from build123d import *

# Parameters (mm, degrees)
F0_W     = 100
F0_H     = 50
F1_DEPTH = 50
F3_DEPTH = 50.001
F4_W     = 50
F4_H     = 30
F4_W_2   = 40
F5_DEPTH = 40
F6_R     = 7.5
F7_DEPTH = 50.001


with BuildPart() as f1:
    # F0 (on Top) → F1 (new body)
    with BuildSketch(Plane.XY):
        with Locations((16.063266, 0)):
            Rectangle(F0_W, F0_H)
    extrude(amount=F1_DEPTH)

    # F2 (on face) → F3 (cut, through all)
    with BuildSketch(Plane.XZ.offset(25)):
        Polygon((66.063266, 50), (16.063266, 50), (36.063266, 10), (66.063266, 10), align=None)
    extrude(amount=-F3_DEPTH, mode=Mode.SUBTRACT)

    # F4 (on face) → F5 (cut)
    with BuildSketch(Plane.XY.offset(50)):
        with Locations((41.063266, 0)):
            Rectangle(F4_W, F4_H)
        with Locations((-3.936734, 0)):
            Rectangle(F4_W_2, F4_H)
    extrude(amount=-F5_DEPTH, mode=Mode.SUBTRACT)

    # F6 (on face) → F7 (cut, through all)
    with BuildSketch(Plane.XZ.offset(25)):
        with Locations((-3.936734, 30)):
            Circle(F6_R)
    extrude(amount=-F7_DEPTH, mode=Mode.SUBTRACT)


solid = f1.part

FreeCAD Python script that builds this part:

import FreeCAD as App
import Part
import Sketcher

V = App.Vector
Q = App.Units.Quantity

doc = App.newDocument("Part")
params = doc.addObject("Spreadsheet::Sheet", "Params")
for row, (alias, value) in enumerate([
    ("sketch1_width", "100 mm"),
    ("sketch1_height", "50 mm"),
    ("pad1_length", "50 mm"),
    ("sketch2_width", "50 mm"),
    ("sketch2_width2", "30 mm"),
    ("sketch2_height", "40 mm"),
    ("sketch3_width", "90 mm"),
    ("sketch3_height", "30 mm"),
    ("pocket2_length", "40 mm"),
    ("sketch4_diameter", "15 mm"),
], start=1):
    params.set(f"A{row}", alias)
    params.set(f"B{row}", "=" + value)
    params.setAlias(f"B{row}", alias)

body = doc.addObject("PartDesign::Body", "Body")

# Sketch on XY plane
sketch1 = body.newObject("Sketcher::SketchObject", "Sketch")
sketch1.AttachmentSupport = (doc.getObject("XY_Plane"), [""])
sketch1.MapMode = "FlatFace"
sketch1.addGeometry(Part.LineSegment(V(-33.936734, 25, 0), V(-33.936734, -25, 0)), False)
sketch1.addGeometry(Part.LineSegment(V(-33.936734, -25, 0), V(66.063266, -25, 0)), False)
sketch1.addGeometry(Part.LineSegment(V(66.063266, -25, 0), V(66.063266, 25, 0)), False)
sketch1.addGeometry(Part.LineSegment(V(66.063266, 25, 0), V(-33.936734, 25, 0)), False)
sketch1.addConstraint(Sketcher.Constraint("Coincident", 0, 2, 1, 1))
sketch1.addConstraint(Sketcher.Constraint("Coincident", 1, 2, 2, 1))
sketch1.addConstraint(Sketcher.Constraint("Coincident", 2, 2, 3, 1))
sketch1.addConstraint(Sketcher.Constraint("Coincident", 3, 2, 0, 1))
sketch1.addConstraint(Sketcher.Constraint("Vertical", 0))
sketch1.addConstraint(Sketcher.Constraint("Horizontal", 1))
sketch1.addConstraint(Sketcher.Constraint("Vertical", 2))
sketch1.addConstraint(Sketcher.Constraint("Horizontal", 3))
sketch1.addConstraint(Sketcher.Constraint("DistanceX", 1, 1, 1, 2, Q("100 mm")))
sketch1.addConstraint(Sketcher.Constraint("DistanceY", 0, 2, 0, 1, Q("50 mm")))
sketch1.addConstraint(Sketcher.Constraint("DistanceY", 0, 2, -1, 1, Q("25 mm")))
sketch1.addConstraint(Sketcher.Constraint("DistanceX", 0, 2, -1, 1, Q("33.936734 mm")))
sketch1.setExpression("Constraints[8]", "Params.sketch1_width")
sketch1.setExpression("Constraints[9]", "Params.sketch1_height")
pad1 = body.newObject("PartDesign::Pad", "Pad")
pad1.Profile = sketch1
pad1.setExpression("Length", "Params.pad1_length")

# Sketch on XZ plane
sketch2 = body.newObject("Sketcher::SketchObject", "Sketch001")
sketch2.AttachmentSupport = (doc.getObject("XZ_Plane"), [""])
sketch2.MapMode = "FlatFace"
sketch2.AttachmentOffset = App.Placement(V(0, 0, 25), App.Rotation())
sketch2.addGeometry(Part.LineSegment(V(66.063266, 50, 0), V(16.063266, 50, 0)), False)
sketch2.addGeometry(Part.LineSegment(V(16.063266, 50, 0), V(36.063266, 10, 0)), False)
sketch2.addGeometry(Part.LineSegment(V(36.063266, 10, 0), V(66.063266, 10, 0)), False)
sketch2.addGeometry(Part.LineSegment(V(66.063266, 10, 0), V(66.063266, 50, 0)), False)
sketch2.addConstraint(Sketcher.Constraint("Coincident", 0, 2, 1, 1))
sketch2.addConstraint(Sketcher.Constraint("Coincident", 1, 2, 2, 1))
sketch2.addConstraint(Sketcher.Constraint("Coincident", 2, 2, 3, 1))
sketch2.addConstraint(Sketcher.Constraint("Coincident", 3, 2, 0, 1))
sketch2.addConstraint(Sketcher.Constraint("Horizontal", 0))
sketch2.addConstraint(Sketcher.Constraint("Horizontal", 2))
sketch2.addConstraint(Sketcher.Constraint("Vertical", 3))
sketch2.addConstraint(Sketcher.Constraint("DistanceX", 0, 2, 0, 1, Q("50 mm")))
sketch2.addConstraint(Sketcher.Constraint("DistanceX", 2, 1, 2, 2, Q("30 mm")))
sketch2.addConstraint(Sketcher.Constraint("DistanceY", 3, 1, 3, 2, Q("40 mm")))
sketch2.addConstraint(Sketcher.Constraint("DistanceY", -1, 1, 0, 2, Q("50 mm")))
sketch2.addConstraint(Sketcher.Constraint("DistanceX", -1, 1, 0, 2, Q("16.063266 mm")))
sketch2.setExpression("Constraints[7]", "Params.sketch2_width")
sketch2.setExpression("Constraints[8]", "Params.sketch2_width2")
sketch2.setExpression("Constraints[9]", "Params.sketch2_height")
pocket1 = body.newObject("PartDesign::Pocket", "Pocket")
pocket1.Profile = sketch2
pocket1.Type = "ThroughAll"

# Sketch on XY plane
sketch3 = body.newObject("Sketcher::SketchObject", "Sketch002")
sketch3.AttachmentSupport = (doc.getObject("XY_Plane"), [""])
sketch3.MapMode = "FlatFace"
sketch3.AttachmentOffset = App.Placement(V(0, 0, 50), App.Rotation())
sketch3.addGeometry(Part.LineSegment(V(66.063266, -15, 0), V(66.063266, 15, 0)), False)
sketch3.addGeometry(Part.LineSegment(V(66.063266, 15, 0), V(-23.936734, 15, 0)), False)
sketch3.addGeometry(Part.LineSegment(V(-23.936734, 15, 0), V(-23.936734, -15, 0)), False)
sketch3.addGeometry(Part.LineSegment(V(-23.936734, -15, 0), V(66.063266, -15, 0)), False)
sketch3.addConstraint(Sketcher.Constraint("Coincident", 0, 2, 1, 1))
sketch3.addConstraint(Sketcher.Constraint("Coincident", 1, 2, 2, 1))
sketch3.addConstraint(Sketcher.Constraint("Coincident", 2, 2, 3, 1))
sketch3.addConstraint(Sketcher.Constraint("Coincident", 3, 2, 0, 1))
sketch3.addConstraint(Sketcher.Constraint("Vertical", 0))
sketch3.addConstraint(Sketcher.Constraint("Horizontal", 1))
sketch3.addConstraint(Sketcher.Constraint("Vertical", 2))
sketch3.addConstraint(Sketcher.Constraint("Horizontal", 3))
sketch3.addConstraint(Sketcher.Constraint("DistanceX", 1, 2, 1, 1, Q("90 mm")))
sketch3.addConstraint(Sketcher.Constraint("DistanceY", 0, 1, 0, 2, Q("30 mm")))
sketch3.addConstraint(Sketcher.Constraint("DistanceY", -1, 1, 0, 2, Q("15 mm")))
sketch3.addConstraint(Sketcher.Constraint("DistanceX", -1, 1, 0, 2, Q("66.063266 mm")))
sketch3.setExpression("Constraints[8]", "Params.sketch3_width")
sketch3.setExpression("Constraints[9]", "Params.sketch3_height")
pocket2 = body.newObject("PartDesign::Pocket", "Pocket001")
pocket2.Profile = sketch3
pocket2.setExpression("Length", "Params.pocket2_length")

# Sketch on XZ plane
sketch4 = body.newObject("Sketcher::SketchObject", "Sketch003")
sketch4.AttachmentSupport = (doc.getObject("XZ_Plane"), [""])
sketch4.MapMode = "FlatFace"
sketch4.AttachmentOffset = App.Placement(V(0, 0, 25), App.Rotation())
sketch4.addGeometry(Part.Circle(V(-3.936734, 30, 0), V(0, 0, 1), 7.5), False)
sketch4.addConstraint(Sketcher.Constraint("Diameter", 0, Q("15 mm")))
sketch4.addConstraint(Sketcher.Constraint("DistanceY", -1, 1, 0, 3, Q("30 mm")))
sketch4.addConstraint(Sketcher.Constraint("DistanceX", 0, 3, -1, 1, Q("3.936734 mm")))
sketch4.setExpression("Constraints[0]", "Params.sketch4_diameter")
pocket3 = body.newObject("PartDesign::Pocket", "Pocket002")
pocket3.Profile = sketch4
pocket3.Type = "ThroughAll"

doc.recompute()
